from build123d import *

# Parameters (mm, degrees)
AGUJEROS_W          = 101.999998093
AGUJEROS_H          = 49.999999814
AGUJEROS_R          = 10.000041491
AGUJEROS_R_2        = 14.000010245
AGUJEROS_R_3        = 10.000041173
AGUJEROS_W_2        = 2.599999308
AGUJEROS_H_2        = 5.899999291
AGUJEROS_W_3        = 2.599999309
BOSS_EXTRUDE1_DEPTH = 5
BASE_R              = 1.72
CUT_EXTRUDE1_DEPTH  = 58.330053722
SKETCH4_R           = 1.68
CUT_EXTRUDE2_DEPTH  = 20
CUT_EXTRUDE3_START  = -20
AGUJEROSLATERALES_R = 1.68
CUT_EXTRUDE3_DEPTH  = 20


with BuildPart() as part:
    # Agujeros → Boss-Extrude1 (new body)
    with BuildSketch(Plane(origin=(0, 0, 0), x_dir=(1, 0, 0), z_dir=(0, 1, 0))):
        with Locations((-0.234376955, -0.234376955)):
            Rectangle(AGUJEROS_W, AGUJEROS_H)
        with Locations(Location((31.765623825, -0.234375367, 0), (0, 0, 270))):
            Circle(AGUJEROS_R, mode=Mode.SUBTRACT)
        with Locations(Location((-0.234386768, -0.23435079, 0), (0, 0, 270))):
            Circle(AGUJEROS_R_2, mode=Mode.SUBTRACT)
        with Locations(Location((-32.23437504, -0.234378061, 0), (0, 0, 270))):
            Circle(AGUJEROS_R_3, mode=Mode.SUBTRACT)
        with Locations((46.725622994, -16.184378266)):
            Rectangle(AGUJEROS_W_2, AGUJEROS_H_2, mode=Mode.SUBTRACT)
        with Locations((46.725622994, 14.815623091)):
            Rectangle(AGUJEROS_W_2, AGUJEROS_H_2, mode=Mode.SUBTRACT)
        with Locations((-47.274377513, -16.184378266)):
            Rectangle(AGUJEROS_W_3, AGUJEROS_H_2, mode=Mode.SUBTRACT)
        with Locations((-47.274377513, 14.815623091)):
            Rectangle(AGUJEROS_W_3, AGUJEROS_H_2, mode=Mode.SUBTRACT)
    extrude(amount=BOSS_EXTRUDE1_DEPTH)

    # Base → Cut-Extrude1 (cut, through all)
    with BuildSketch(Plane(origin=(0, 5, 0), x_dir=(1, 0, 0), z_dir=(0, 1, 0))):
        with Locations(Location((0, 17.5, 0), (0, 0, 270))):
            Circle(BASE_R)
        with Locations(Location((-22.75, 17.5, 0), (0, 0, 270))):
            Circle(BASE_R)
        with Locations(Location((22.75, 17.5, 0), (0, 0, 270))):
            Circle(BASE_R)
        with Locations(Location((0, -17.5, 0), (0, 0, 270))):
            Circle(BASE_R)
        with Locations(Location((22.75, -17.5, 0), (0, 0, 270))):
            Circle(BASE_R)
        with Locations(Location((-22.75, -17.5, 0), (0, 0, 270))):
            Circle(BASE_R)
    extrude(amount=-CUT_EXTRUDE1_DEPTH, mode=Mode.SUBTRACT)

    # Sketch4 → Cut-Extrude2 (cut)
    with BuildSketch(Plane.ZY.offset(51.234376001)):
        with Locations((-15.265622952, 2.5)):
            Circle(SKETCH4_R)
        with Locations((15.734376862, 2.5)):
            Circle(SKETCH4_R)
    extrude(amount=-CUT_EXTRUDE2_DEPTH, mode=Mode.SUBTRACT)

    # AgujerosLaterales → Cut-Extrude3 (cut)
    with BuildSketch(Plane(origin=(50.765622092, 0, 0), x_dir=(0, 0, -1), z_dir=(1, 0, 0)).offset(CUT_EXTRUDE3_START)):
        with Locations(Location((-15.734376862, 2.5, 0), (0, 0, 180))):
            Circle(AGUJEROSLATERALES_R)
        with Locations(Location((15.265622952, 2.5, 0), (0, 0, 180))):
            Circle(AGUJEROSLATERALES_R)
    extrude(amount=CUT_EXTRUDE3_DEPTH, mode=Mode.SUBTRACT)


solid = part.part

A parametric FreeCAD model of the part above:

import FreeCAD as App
import Part
import Sketcher

doc = App.newDocument("Part")
params = doc.addObject("Spreadsheet::Sheet", "Params")
for row, (alias, value) in enumerate([
    ("sketch1_width", "101.999998 mm"),
    ("sketch1_height", "50 mm"),
    ("sketch1_width2", "2.599999 mm"),
    ("sketch1_height2", "5.899999 mm"),
    ("pad1_length", "5 mm"),
    ("sketch2_diameter", "3.44 mm"),
    ("sketch3_diameter", "3.36 mm"),
    ("pocket2_length", "20 mm"),
    ("sketch4_diameter", "3.36 mm"),
    ("pocket3_length", "20 mm"),
], start=1):
    params.set(f"A{row}", alias)
    params.set(f"B{row}", "=" + value)
    params.setAlias(f"B{row}", alias)

body = doc.addObject("PartDesign::Body", "Body")

sketch1 = body.newObject("Sketcher::SketchObject", "Sketch")
sketch1.AttachmentSupport = (doc.getObject("XZ_Plane"), [""])
sketch1.MapMode = "FlatFace"
sketch1.addGeometry([
    Part.LineSegment(App.Vector(-51.234376, -24.765623, 0), App.Vector(-51.234376, 25.234377, 0)),
    Part.LineSegment(App.Vector(-51.234376, 25.234377, 0), App.Vector(50.765622, 25.234377, 0)),
    Part.LineSegment(App.Vector(50.765622, 25.234377, 0), App.Vector(50.765622, -24.765623, 0)),
    Part.LineSegment(App.Vector(50.765622, -24.765623, 0), App.Vector(-51.234376, -24.765623, 0)),
    Part.LineSegment(App.Vector(-45.974378, 19.134378, 0), App.Vector(-48.574377, 19.134378, 0)),
    Part.LineSegment(App.Vector(-48.574377, 19.134378, 0), App.Vector(-48.574377, 13.234379, 0)),
    Part.LineSegment(App.Vector(-48.574377, 13.234379, 0), App.Vector(-45.974378, 13.234379, 0)),
    Part.LineSegment(App.Vector(-45.974378, 13.234379, 0), App.Vector(-45.974378, 19.134378, 0)),
    Part.LineSegment(App.Vector(48.025623, 19.134378, 0), App.Vector(45.425623, 19.134378, 0)),
    Part.LineSegment(App.Vector(45.425623, 19.134378, 0), App.Vector(45.425623, 13.234379, 0)),
    Part.LineSegment(App.Vector(45.425623, 13.234379, 0), App.Vector(48.025623, 13.234379, 0)),
    Part.LineSegment(App.Vector(48.025623, 13.234379, 0), App.Vector(48.025623, 19.134378, 0)),
    Part.Circle(App.Vector(-32.234375, 0.234378, 0), App.Vector(0, 0, 1), 10.000041),
    Part.LineSegment(App.Vector(-45.974378, -11.865623, 0), App.Vector(-48.574377, -11.865623, 0)),
    Part.LineSegment(App.Vector(-48.574377, -11.865623, 0), App.Vector(-48.574377, -17.765623, 0)),
    Part.LineSegment(App.Vector(-48.574377, -17.765623, 0), App.Vector(-45.974378, -17.765623, 0)),
    Part.LineSegment(App.Vector(-45.974378, -17.765623, 0), App.Vector(-45.974378, -11.865623, 0)),
    Part.Circle(App.Vector(-0.234387, 0.234351, 0), App.Vector(0, 0, 1), 14.00001),
    Part.Circle(App.Vector(31.765624, 0.234375, 0), App.Vector(0, 0, 1), 10.000041),
    Part.LineSegment(App.Vector(48.025623, -11.865623, 0), App.Vector(45.425623, -11.865623, 0)),
    Part.LineSegment(App.Vector(45.425623, -11.865623, 0), App.Vector(45.425623, -17.765623, 0)),
    Part.LineSegment(App.Vector(45.425623, -17.765623, 0), App.Vector(48.025623, -17.765623, 0)),
    Part.LineSegment(App.Vector(48.025623, -17.765623, 0), App.Vector(48.025623, -11.865623, 0)),
], False)
sketch1.addConstraint([
    Sketcher.Constraint("Coincident", 0, 2, 1, 1),
    Sketcher.Constraint("Coincident", 1, 2, 2, 1),
    Sketcher.Constraint("Coincident", 2, 2, 3, 1),
    Sketcher.Constraint("Coincident", 3, 2, 0, 1),
    Sketcher.Constraint("Coincident", 4, 2, 5, 1),
    Sketcher.Constraint("Coincident", 5, 2, 6, 1),
    Sketcher.Constraint("Coincident", 6, 2, 7, 1),
    Sketcher.Constraint("Coincident", 7, 2, 4, 1),
    Sketcher.Constraint("Coincident", 8, 2, 9, 1),
    Sketcher.Constraint("Coincident", 9, 2, 10, 1),
    Sketcher.Constraint("Coincident", 10, 2, 11, 1),
    Sketcher.Constraint("Coincident", 11, 2, 8, 1),
    Sketcher.Constraint("Coincident", 13, 2, 14, 1),
    Sketcher.Constraint("Coincident", 14, 2, 15, 1),
    Sketcher.Constraint("Coincident", 15, 2, 16, 1),
    Sketcher.Constraint("Coincident", 16, 2, 13, 1),
    Sketcher.Constraint("Coincident", 19, 2, 20, 1),
    Sketcher.Constraint("Coincident", 20, 2, 21, 1),
    Sketcher.Constraint("Coincident", 21, 2, 22, 1),
    Sketcher.Constraint("Coincident", 22, 2, 19, 1),
    Sketcher.Constraint("Vertical", 0),
    Sketcher.Constraint("Horizontal", 1),
    Sketcher.Constraint("Vertical", 2),
    Sketcher.Constraint("Horizontal", 3),
    Sketcher.Constraint("Horizontal", 4),
    Sketcher.Constraint("Vertical", 5),
    Sketcher.Constraint("Horizontal", 6),
    Sketcher.Constraint("Vertical", 7),
    Sketcher.Constraint("Horizontal", 8),
    Sketcher.Constraint("Vertical", 9),
    Sketcher.Constraint("Horizontal", 10),
    Sketcher.Constraint("Vertical", 11),
    Sketcher.Constraint("Horizontal", 13),
    Sketcher.Constraint("Vertical", 14),
    Sketcher.Constraint("Horizontal", 15),
    Sketcher.Constraint("Vertical", 16),
    Sketcher.Constraint("Horizontal", 19),
    Sketcher.Constraint("Vertical", 20),
    Sketcher.Constraint("Horizontal", 21),
    Sketcher.Constraint("Vertical", 22),
    Sketcher.Constraint("Equal", 12, 18),
    Sketcher.Constraint("Horizontal", 7, 2, 8, 2),
    Sketcher.Constraint("Horizontal", 6, 2, 9, 2),
    Sketcher.Constraint("Horizontal", 16, 2, 19, 2),
    Sketcher.Constraint("Horizontal", 15, 2, 20, 2),
    Sketcher.Constraint("Vertical", 5, 2, 13, 2),
    Sketcher.Constraint("Vertical", 7, 2, 15, 2),
    Sketcher.Constraint("Vertical", 9, 2, 19, 2),
    Sketcher.Constraint("Vertical", 11, 2, 21, 2),
    Sketcher.Constraint("Equal", 6, 8),
    Sketcher.Constraint("Equal", 11, 14),
    Sketcher.Constraint("DistanceX", 1, 1, 1, 2, 101.999998),
    Sketcher.Constraint("DistanceY", 0, 1, 0, 2, 50.0),
    Sketcher.Constraint("DistanceX", 4, 2, 4, 1, 2.599999),
    Sketcher.Constraint("DistanceY", 5, 2, 5, 1, 5.899999),
    Sketcher.Constraint("DistanceX", 12, 3, 18, 3, 63.999999),
    Sketcher.Constraint("DistanceX", 0, 2, 12, 3, 19.000001),
    Sketcher.Constraint("DistanceY", 12, 3, 0, 2, 24.999999),
    Sketcher.Constraint("DistanceY", 18, 3, 0, 2, 25.000001),
    Sketcher.Constraint("DistanceY", 5, 2, 0, 2, 11.999998),
    Sketcher.Constraint("DistanceY", 13, 2, 4, 2, 31.000001),
    Sketcher.Constraint("Diameter", 17, 28.00002),
    Sketcher.Constraint("DistanceX", 0, 2, 4, 2, 2.659999),
    Sketcher.Constraint("DistanceX", 8, 2, 1, 2, 5.339999),
    Sketcher.Constraint("Diameter", 12, 20.000082),
    Sketcher.Constraint("DistanceY", -1, 1, 12, 3, 0.234378),
    Sketcher.Constraint("DistanceY", -1, 1, 17, 3, 0.234351),
    Sketcher.Constraint("DistanceX", 12, 3, 17, 3, 31.999988),
    Sketcher.Constraint("DistanceX", 12, 3, -1, 1, 32.234375),
])
sketch1.setExpression("Constraints[51]", "Params.sketch1_width")
sketch1.setExpression("Constraints[52]", "Params.sketch1_height")
sketch1.setExpression("Constraints[53]", "Params.sketch1_width2")
sketch1.setExpression("Constraints[54]", "Params.sketch1_height2")
pad1 = body.newObject("PartDesign::Pad", "Pad")
pad1.Profile = sketch1
pad1.setExpression("Length", "Params.pad1_length")
pad1.Reversed = True

sketch2 = body.newObject("Sketcher::SketchObject", "Sketch001")
sketch2.AttachmentSupport = (doc.getObject("XZ_Plane"), [""])
sketch2.MapMode = "FlatFace"
sketch2.AttachmentOffset = App.Placement(App.Vector(0, 0, -5), App.Rotation())
sketch2.addGeometry([
    Part.Circle(App.Vector(0, -17.5, 0), App.Vector(0, 0, 1), 1.72),
    Part.Circle(App.Vector(-22.75, -17.5, 0), App.Vector(0, 0, 1), 1.72),
    Part.Circle(App.Vector(22.75, -17.5, 0), App.Vector(0, 0, 1), 1.72),
    Part.Circle(App.Vector(0, 17.5, 0), App.Vector(0, 0, 1), 1.72),
    Part.Circle(App.Vector(22.75, 17.5, 0), App.Vector(0, 0, 1), 1.72),
    Part.Circle(App.Vector(-22.75, 17.5, 0), App.Vector(0, 0, 1), 1.72),
], False)
sketch2.addConstraint([
    Sketcher.Constraint("Equal", 0, 1),
    Sketcher.Constraint("Equal", 1, 2),
    Sketcher.Constraint("Equal", 2, 3),
    Sketcher.Constraint("Equal", 3, 4),
    Sketcher.Constraint("Equal", 4, 5),
    Sketcher.Constraint("Symmetric", 0, 3, 3, 3, -1, 1),
    Sketcher.Constraint("Symmetric", 1, 3, 4, 3, -1, 1),
    Sketcher.Constraint("Symmetric", 2, 3, 5, 3, -1, 1),
    Sketcher.Constraint("Symmetric", 1, 3, 2, 3, -2),
    Sketcher.Constraint("PointOnObject", 0, 3, -2),
    Sketcher.Constraint("Horizontal", 0, 3, 1, 3),
    Sketcher.Constraint("Diameter", 0, 3.44),
    Sketcher.Constraint("DistanceY", 0, 3, 3, 3, 35.0),
    Sketcher.Constraint("DistanceX", 1, 3, 2, 3, 45.5),
])
sketch2.setExpression("Constraints[11]", "Params.sketch2_diameter")
pocket1 = body.newObject("PartDesign::Pocket", "Pocket")
pocket1.Profile = sketch2
pocket1.Type = "ThroughAll"
pocket1.Reversed = True

sketch3 = body.newObject("Sketcher::SketchObject", "Sketch002")
sketch3.AttachmentSupport = (doc.getObject("YZ_Plane"), [""])
sketch3.MapMode = "FlatFace"
sketch3.AttachmentOffset = App.Placement(App.Vector(0, 0, -51.234376), App.Rotation())
sketch3.addGeometry([
    Part.Circle(App.Vector(2.5, -15.265623, 0), App.Vector(0, 0, 1), 1.68),
    Part.Circle(App.Vector(2.5, 15.734377, 0), App.Vector(0, 0, 1), 1.68),
], False)
sketch3.addConstraint([
    Sketcher.Constraint("Equal", 0, 1),
    Sketcher.Constraint("Vertical", 0, 3, 1, 3),
    Sketcher.Constraint("Diameter", 0, 3.36),
    Sketcher.Constraint("DistanceY", 0, 3, 1, 3, 31.0),
    Sketcher.Constraint("DistanceX", -1, 1, 0, 3, 2.5),
    Sketcher.Constraint("DistanceY", 0, 3, -1, 1, 15.265623),
])
sketch3.setExpression("Constraints[2]", "Params.sketch3_diameter")
pocket2 = body.newObject("PartDesign::Pocket", "Pocket001")
pocket2.Profile = sketch3
pocket2.setExpression("Length", "Params.pocket2_length")
pocket2.Reversed = True

sketch4 = body.newObject("Sketcher::SketchObject", "Sketch003")
sketch4.AttachmentSupport = (doc.getObject("YZ_Plane"), [""])
sketch4.MapMode = "FlatFace"
sketch4.AttachmentOffset = App.Placement(App.Vector(0, 0, 30.765622), App.Rotation())
sketch4.addGeometry([
    Part.Circle(App.Vector(2.5, 15.734377, 0), App.Vector(0, 0, 1), 1.68),
    Part.Circle(App.Vector(2.5, -15.265623, 0), App.Vector(0, 0, 1), 1.68),
], False)
sketch4.addConstraint([
    Sketcher.Constraint("Equal", 0, 1),
    Sketcher.Constraint("Vertical", 0, 3, 1, 3),
    Sketcher.Constraint("Diameter", 0, 3.36),
    Sketcher.Constraint("DistanceY", 1, 3, 0, 3, 31.0),
    Sketcher.Constraint("DistanceX", -1, 1, 0, 3, 2.5),
    Sketcher.Constraint("DistanceY", -1, 1, 0, 3, 15.734377),
])
sketch4.setExpression("Constraints[2]", "Params.sketch4_diameter")
pocket3 = body.newObject("PartDesign::Pocket", "Pocket002")
pocket3.Profile = sketch4
pocket3.setExpression("Length", "Params.pocket3_length")
pocket3.Reversed = True

doc.recompute()
